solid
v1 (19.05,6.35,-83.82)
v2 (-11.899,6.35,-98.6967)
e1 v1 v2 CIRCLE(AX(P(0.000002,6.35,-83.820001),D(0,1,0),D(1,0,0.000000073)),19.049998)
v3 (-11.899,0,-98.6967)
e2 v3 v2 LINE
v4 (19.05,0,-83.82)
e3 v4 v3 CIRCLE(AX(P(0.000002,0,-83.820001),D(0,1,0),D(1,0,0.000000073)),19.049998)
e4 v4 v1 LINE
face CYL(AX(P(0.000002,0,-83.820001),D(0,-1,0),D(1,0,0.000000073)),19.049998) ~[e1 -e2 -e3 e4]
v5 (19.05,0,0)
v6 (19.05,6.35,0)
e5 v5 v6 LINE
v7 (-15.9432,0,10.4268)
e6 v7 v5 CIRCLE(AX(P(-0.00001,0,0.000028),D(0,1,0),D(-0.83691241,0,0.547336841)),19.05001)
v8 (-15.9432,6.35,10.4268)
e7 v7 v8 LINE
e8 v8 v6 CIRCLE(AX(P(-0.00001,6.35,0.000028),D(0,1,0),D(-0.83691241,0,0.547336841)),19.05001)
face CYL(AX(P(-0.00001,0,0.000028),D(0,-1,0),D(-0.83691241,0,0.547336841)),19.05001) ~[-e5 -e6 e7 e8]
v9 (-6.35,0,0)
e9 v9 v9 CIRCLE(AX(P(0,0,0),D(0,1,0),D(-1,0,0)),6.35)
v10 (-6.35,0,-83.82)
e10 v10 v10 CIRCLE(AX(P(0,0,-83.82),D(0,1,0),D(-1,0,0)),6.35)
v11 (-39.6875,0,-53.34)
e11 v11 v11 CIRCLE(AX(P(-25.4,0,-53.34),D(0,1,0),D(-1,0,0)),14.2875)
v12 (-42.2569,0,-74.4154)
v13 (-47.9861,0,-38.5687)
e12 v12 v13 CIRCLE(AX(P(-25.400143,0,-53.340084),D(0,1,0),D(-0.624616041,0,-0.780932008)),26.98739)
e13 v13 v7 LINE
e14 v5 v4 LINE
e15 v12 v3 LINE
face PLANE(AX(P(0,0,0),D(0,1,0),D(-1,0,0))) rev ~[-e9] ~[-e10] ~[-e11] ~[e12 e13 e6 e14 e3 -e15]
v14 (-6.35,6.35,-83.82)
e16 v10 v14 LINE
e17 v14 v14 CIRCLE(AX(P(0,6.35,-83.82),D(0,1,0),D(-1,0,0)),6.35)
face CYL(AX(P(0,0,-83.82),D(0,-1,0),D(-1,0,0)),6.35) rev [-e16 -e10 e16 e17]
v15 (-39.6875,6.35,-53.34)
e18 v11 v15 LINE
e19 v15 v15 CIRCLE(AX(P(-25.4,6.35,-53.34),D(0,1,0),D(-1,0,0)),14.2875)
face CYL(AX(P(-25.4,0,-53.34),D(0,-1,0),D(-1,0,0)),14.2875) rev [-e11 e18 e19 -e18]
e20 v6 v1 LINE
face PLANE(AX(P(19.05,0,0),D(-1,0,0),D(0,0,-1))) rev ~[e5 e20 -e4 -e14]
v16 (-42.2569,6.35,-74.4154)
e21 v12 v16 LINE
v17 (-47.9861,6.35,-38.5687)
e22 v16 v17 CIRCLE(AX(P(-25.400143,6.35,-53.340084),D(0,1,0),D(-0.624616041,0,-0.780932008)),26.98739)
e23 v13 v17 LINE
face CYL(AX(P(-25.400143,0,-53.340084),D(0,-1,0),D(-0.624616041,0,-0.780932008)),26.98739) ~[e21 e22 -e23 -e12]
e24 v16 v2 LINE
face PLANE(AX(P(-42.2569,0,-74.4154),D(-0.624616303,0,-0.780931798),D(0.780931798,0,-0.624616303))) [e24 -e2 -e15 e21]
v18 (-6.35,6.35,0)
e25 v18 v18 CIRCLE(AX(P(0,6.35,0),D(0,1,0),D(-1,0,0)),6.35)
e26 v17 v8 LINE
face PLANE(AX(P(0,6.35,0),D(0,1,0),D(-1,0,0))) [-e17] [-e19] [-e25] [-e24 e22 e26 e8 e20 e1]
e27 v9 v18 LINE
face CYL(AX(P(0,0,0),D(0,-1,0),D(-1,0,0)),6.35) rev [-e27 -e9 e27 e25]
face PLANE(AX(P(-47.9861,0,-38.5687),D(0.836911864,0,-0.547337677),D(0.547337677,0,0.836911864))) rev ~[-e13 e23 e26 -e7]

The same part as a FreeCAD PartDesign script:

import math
import FreeCAD as App
import Part
import Sketcher
from FreeCAD import Vector
Q = App.Units.Quantity

doc = App.newDocument("Part")
body = doc.addObject("PartDesign::Body", "Body")

sketch1 = body.newObject("Sketcher::SketchObject", "Sketch")
sketch1.AttachmentSupport = (doc.getObject("XZ_Plane"), [""])
sketch1.MapMode = "FlatFace"
sketch1.addGeometry([
    Part.ArcOfCircle(Part.Circle(Vector(0, 0, 0), Vector(0, 0, 1), 19), math.radians(0), math.radians(147)),
    Part.LineSegment(Vector(19, 0, 0), Vector(19, -84, 0)),
    Part.ArcOfCircle(Part.Circle(Vector(0, -84, 0), Vector(0, 0, 1), 19), math.radians(-129), math.radians(0)),
    Part.LineSegment(Vector(-12, -99, 0), Vector(-42, -74, 0)),
    Part.ArcOfCircle(Part.Circle(Vector(-25, -53, 0), Vector(0, 0, 1), 27), math.radians(147), math.radians(231)),
    Part.LineSegment(Vector(-48, -39, 0), Vector(-16, 10, 0)),
    Part.Circle(Vector(0, -84, 0), Vector(0, 0, 1), 6),
    Part.Circle(Vector(-25, -53, 0), Vector(0, 0, 1), 14),
    Part.Circle(Vector(0, 0, 0), Vector(0, 0, 1), 6),
], False)
sketch1.addConstraint([
    Sketcher.Constraint("Tangent", 0, 1, 1, 1),
    Sketcher.Constraint("Tangent", 1, 2, 2, 2),
    Sketcher.Constraint("Tangent", 2, 1, 3, 1),
    Sketcher.Constraint("Tangent", 3, 2, 4, 2),
    Sketcher.Constraint("Tangent", 4, 1, 5, 1),
    Sketcher.Constraint("Tangent", 5, 2, 0, 2),
    Sketcher.Constraint("Vertical", 1),
    Sketcher.Constraint("Coincident", 0, 3, -1, 1),
    Sketcher.Constraint("Coincident", 8, 3, -1, 1),
    Sketcher.Constraint("Coincident", 6, 3, 2, 3),
    Sketcher.Constraint("Coincident", 7, 3, 4, 3),
    Sketcher.Constraint("Equal", 0, 2),
    Sketcher.Constraint("Equal", 6, 8),
    Sketcher.Constraint("Diameter", 6, Q("0.5 in")),
    Sketcher.Constraint("Diameter", 7, Q("1.125 in")),
    Sketcher.Constraint("DistanceY", 1, 2, 1, 1, Q("3.3 in")),
    Sketcher.Constraint("DistanceX", 4, 3, -1, 1, Q("1 in")),
    Sketcher.Constraint("DistanceY", 2, 3, 4, 3, Q("1.2 in")),
    Sketcher.Constraint("Radius", 0, Q("0.75 in")),
    Sketcher.Constraint("Radius", 4, Q("1.0625 in")),
])
pad1 = body.newObject("PartDesign::Pad", "Pad")
pad1.Profile = sketch1
pad1.Length = Q("0.25 in")
pad1.Reversed = True

doc.recompute()
